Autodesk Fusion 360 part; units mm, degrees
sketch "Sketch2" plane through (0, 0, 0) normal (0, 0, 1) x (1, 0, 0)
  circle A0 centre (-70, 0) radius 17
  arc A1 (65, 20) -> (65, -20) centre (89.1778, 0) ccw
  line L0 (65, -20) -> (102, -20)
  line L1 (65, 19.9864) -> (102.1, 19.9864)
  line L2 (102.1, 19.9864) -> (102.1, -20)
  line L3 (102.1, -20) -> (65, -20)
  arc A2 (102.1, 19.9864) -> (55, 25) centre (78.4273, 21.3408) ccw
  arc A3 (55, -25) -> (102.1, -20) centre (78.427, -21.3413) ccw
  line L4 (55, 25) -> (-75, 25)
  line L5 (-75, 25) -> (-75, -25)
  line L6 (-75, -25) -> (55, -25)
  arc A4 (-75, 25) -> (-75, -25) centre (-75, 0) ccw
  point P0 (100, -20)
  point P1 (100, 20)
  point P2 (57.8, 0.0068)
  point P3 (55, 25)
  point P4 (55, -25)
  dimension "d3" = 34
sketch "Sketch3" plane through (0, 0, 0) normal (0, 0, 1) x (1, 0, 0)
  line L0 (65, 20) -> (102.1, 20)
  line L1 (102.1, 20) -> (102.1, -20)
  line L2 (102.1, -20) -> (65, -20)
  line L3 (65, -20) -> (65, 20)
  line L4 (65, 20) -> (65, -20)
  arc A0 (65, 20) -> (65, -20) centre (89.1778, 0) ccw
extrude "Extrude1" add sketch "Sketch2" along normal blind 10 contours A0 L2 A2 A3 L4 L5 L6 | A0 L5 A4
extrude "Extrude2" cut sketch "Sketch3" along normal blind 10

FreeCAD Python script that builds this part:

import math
import FreeCAD as App
import Part
import Sketcher

doc = App.newDocument("Part")
params = doc.addObject("Spreadsheet::Sheet", "Params")
for row, (alias, value) in enumerate([
    ("sketch1_diameter", "34 mm"),
    ("sketch1_radius", "25 mm"),
    ("sketch1_width", "130 mm"),
    ("pad1_length", "10 mm"),
    ("sketch2_height", "40 mm"),
    ("sketch2_width", "37.1 mm"),
    ("pocket1_length", "10 mm"),
], start=1):
    params.set(f"A{row}", alias)
    params.set(f"B{row}", "=" + value)
    params.setAlias(f"B{row}", alias)

body = doc.addObject("PartDesign::Body", "Body")

# Sketch on XY plane
sketch1 = body.newObject("Sketcher::SketchObject", "Sketch")
sketch1.AttachmentSupport = (doc.getObject("XY_Plane"), [""])
sketch1.MapMode = "FlatFace"
sketch1.addGeometry([
    Part.LineSegment(App.Vector(55, 25, 0), App.Vector(-75, 25, 0)),  # 0
    Part.ArcOfCircle(Part.Circle(App.Vector(-75, 0, 0), App.Vector(0, 0, 1), 25), math.radians(90), math.radians(270)),  # 1
    Part.LineSegment(App.Vector(-75, -25, 0), App.Vector(55, -25, 0)),  # 2
    Part.ArcOfCircle(Part.Circle(App.Vector(78, -21, 0), App.Vector(0, 0, 1), 24), math.radians(-171), math.radians(3)),  # 3
    Part.LineSegment(App.Vector(102, -20, 0), App.Vector(102, 20, 0)),  # 4
    Part.ArcOfCircle(Part.Circle(App.Vector(78, 21, 0), App.Vector(0, 0, 1), 24), math.radians(-3), math.radians(171)),  # 5
    Part.Circle(App.Vector(-70, 0, 0), App.Vector(0, 0, 1), 17),  # 6
], False)
sketch1.addConstraint([
    Sketcher.Constraint("Tangent", 0, 2, 1, 1),
    Sketcher.Constraint("Tangent", 1, 2, 2, 1),
    Sketcher.Constraint("Coincident", 2, 2, 3, 1),
    Sketcher.Constraint("Coincident", 3, 2, 4, 1),
    Sketcher.Constraint("Coincident", 4, 2, 5, 1),
    Sketcher.Constraint("Coincident", 5, 2, 0, 1),
    Sketcher.Constraint("Horizontal", 0),
    Sketcher.Constraint("Horizontal", 2),
    Sketcher.Constraint("Vertical", 4),
    Sketcher.Constraint("Symmetric", 2, 2, 5, 2, -1),
    Sketcher.Constraint("PointOnObject", 6, 3, -1),
    Sketcher.Constraint("Diameter", 6, 34.0),
    Sketcher.Constraint("Radius", 1, 25.0),
    Sketcher.Constraint("DistanceX", 0, 2, 0, 1, 130.0),
    Sketcher.Constraint("DistanceX", 1, 3, -1, 1, 75.0),
    Sketcher.Constraint("DistanceX", 6, 3, -1, 1, 70.0),
    Sketcher.Constraint("DistanceY", 3, 2, -1, 1, 20.0),
    Sketcher.Constraint("Radius", 3, 23.711),
    Sketcher.Constraint("DistanceX", -1, 1, 3, 2, 102.1),
    Sketcher.Constraint("Radius", 5, 23.7114),
    Sketcher.Constraint("DistanceY", 4, 1, 4, 2, 39.9864),
])
sketch1.setExpression("Constraints[11]", "Params.sketch1_diameter")
sketch1.setExpression("Constraints[12]", "Params.sketch1_radius")
sketch1.setExpression("Constraints[13]", "Params.sketch1_width")
pad1 = body.newObject("PartDesign::Pad", "Pad")
pad1.Profile = sketch1
pad1.setExpression("Length", "Params.pad1_length")

# Sketch on XY plane
sketch2 = body.newObject("Sketcher::SketchObject", "Sketch001")
sketch2.AttachmentSupport = (doc.getObject("XY_Plane"), [""])
sketch2.MapMode = "FlatFace"
sketch2.addGeometry([
    Part.LineSegment(App.Vector(102, 20, 0), App.Vector(65, 20, 0)),
    Part.ArcOfCircle(Part.Circle(App.Vector(89, 0, 0), App.Vector(0, 0, 1), 31), math.radians(140), math.radians(220)),
    Part.LineSegment(App.Vector(65, -20, 0), App.Vector(102, -20, 0)),
    Part.LineSegment(App.Vector(102, -20, 0), App.Vector(102, 20, 0)),
], False)
sketch2.addConstraint([
    Sketcher.Constraint("Coincident", 0, 2, 1, 1),
    Sketcher.Constraint("Coincident", 1, 2, 2, 1),
    Sketcher.Constraint("Coincident", 2, 2, 3, 1),
    Sketcher.Constraint("Coincident", 3, 2, 0, 1),
    Sketcher.Constraint("Horizontal", 0),
    Sketcher.Constraint("Horizontal", 2),
    Sketcher.Constraint("Vertical", 3),
    Sketcher.Constraint("Symmetric", 0, 2, 1, 2, -1),
    Sketcher.Constraint("DistanceY", 3, 1, 3, 2, 40.0),
    Sketcher.Constraint("DistanceX", 0, 2, 0, 1, 37.1),
    Sketcher.Constraint("DistanceX", -1, 1, 0, 2, 65.0),
    Sketcher.Constraint("Radius", 1, 31.3778),
])
sketch2.setExpression("Constraints[8]", "Params.sketch2_height")
sketch2.setExpression("Constraints[9]", "Params.sketch2_width")
pocket1 = body.newObject("PartDesign::Pocket", "Pocket")
pocket1.Profile = sketch2
pocket1.setExpression("Length", "Params.pocket1_length")
pocket1.Reversed = True

doc.recompute()
